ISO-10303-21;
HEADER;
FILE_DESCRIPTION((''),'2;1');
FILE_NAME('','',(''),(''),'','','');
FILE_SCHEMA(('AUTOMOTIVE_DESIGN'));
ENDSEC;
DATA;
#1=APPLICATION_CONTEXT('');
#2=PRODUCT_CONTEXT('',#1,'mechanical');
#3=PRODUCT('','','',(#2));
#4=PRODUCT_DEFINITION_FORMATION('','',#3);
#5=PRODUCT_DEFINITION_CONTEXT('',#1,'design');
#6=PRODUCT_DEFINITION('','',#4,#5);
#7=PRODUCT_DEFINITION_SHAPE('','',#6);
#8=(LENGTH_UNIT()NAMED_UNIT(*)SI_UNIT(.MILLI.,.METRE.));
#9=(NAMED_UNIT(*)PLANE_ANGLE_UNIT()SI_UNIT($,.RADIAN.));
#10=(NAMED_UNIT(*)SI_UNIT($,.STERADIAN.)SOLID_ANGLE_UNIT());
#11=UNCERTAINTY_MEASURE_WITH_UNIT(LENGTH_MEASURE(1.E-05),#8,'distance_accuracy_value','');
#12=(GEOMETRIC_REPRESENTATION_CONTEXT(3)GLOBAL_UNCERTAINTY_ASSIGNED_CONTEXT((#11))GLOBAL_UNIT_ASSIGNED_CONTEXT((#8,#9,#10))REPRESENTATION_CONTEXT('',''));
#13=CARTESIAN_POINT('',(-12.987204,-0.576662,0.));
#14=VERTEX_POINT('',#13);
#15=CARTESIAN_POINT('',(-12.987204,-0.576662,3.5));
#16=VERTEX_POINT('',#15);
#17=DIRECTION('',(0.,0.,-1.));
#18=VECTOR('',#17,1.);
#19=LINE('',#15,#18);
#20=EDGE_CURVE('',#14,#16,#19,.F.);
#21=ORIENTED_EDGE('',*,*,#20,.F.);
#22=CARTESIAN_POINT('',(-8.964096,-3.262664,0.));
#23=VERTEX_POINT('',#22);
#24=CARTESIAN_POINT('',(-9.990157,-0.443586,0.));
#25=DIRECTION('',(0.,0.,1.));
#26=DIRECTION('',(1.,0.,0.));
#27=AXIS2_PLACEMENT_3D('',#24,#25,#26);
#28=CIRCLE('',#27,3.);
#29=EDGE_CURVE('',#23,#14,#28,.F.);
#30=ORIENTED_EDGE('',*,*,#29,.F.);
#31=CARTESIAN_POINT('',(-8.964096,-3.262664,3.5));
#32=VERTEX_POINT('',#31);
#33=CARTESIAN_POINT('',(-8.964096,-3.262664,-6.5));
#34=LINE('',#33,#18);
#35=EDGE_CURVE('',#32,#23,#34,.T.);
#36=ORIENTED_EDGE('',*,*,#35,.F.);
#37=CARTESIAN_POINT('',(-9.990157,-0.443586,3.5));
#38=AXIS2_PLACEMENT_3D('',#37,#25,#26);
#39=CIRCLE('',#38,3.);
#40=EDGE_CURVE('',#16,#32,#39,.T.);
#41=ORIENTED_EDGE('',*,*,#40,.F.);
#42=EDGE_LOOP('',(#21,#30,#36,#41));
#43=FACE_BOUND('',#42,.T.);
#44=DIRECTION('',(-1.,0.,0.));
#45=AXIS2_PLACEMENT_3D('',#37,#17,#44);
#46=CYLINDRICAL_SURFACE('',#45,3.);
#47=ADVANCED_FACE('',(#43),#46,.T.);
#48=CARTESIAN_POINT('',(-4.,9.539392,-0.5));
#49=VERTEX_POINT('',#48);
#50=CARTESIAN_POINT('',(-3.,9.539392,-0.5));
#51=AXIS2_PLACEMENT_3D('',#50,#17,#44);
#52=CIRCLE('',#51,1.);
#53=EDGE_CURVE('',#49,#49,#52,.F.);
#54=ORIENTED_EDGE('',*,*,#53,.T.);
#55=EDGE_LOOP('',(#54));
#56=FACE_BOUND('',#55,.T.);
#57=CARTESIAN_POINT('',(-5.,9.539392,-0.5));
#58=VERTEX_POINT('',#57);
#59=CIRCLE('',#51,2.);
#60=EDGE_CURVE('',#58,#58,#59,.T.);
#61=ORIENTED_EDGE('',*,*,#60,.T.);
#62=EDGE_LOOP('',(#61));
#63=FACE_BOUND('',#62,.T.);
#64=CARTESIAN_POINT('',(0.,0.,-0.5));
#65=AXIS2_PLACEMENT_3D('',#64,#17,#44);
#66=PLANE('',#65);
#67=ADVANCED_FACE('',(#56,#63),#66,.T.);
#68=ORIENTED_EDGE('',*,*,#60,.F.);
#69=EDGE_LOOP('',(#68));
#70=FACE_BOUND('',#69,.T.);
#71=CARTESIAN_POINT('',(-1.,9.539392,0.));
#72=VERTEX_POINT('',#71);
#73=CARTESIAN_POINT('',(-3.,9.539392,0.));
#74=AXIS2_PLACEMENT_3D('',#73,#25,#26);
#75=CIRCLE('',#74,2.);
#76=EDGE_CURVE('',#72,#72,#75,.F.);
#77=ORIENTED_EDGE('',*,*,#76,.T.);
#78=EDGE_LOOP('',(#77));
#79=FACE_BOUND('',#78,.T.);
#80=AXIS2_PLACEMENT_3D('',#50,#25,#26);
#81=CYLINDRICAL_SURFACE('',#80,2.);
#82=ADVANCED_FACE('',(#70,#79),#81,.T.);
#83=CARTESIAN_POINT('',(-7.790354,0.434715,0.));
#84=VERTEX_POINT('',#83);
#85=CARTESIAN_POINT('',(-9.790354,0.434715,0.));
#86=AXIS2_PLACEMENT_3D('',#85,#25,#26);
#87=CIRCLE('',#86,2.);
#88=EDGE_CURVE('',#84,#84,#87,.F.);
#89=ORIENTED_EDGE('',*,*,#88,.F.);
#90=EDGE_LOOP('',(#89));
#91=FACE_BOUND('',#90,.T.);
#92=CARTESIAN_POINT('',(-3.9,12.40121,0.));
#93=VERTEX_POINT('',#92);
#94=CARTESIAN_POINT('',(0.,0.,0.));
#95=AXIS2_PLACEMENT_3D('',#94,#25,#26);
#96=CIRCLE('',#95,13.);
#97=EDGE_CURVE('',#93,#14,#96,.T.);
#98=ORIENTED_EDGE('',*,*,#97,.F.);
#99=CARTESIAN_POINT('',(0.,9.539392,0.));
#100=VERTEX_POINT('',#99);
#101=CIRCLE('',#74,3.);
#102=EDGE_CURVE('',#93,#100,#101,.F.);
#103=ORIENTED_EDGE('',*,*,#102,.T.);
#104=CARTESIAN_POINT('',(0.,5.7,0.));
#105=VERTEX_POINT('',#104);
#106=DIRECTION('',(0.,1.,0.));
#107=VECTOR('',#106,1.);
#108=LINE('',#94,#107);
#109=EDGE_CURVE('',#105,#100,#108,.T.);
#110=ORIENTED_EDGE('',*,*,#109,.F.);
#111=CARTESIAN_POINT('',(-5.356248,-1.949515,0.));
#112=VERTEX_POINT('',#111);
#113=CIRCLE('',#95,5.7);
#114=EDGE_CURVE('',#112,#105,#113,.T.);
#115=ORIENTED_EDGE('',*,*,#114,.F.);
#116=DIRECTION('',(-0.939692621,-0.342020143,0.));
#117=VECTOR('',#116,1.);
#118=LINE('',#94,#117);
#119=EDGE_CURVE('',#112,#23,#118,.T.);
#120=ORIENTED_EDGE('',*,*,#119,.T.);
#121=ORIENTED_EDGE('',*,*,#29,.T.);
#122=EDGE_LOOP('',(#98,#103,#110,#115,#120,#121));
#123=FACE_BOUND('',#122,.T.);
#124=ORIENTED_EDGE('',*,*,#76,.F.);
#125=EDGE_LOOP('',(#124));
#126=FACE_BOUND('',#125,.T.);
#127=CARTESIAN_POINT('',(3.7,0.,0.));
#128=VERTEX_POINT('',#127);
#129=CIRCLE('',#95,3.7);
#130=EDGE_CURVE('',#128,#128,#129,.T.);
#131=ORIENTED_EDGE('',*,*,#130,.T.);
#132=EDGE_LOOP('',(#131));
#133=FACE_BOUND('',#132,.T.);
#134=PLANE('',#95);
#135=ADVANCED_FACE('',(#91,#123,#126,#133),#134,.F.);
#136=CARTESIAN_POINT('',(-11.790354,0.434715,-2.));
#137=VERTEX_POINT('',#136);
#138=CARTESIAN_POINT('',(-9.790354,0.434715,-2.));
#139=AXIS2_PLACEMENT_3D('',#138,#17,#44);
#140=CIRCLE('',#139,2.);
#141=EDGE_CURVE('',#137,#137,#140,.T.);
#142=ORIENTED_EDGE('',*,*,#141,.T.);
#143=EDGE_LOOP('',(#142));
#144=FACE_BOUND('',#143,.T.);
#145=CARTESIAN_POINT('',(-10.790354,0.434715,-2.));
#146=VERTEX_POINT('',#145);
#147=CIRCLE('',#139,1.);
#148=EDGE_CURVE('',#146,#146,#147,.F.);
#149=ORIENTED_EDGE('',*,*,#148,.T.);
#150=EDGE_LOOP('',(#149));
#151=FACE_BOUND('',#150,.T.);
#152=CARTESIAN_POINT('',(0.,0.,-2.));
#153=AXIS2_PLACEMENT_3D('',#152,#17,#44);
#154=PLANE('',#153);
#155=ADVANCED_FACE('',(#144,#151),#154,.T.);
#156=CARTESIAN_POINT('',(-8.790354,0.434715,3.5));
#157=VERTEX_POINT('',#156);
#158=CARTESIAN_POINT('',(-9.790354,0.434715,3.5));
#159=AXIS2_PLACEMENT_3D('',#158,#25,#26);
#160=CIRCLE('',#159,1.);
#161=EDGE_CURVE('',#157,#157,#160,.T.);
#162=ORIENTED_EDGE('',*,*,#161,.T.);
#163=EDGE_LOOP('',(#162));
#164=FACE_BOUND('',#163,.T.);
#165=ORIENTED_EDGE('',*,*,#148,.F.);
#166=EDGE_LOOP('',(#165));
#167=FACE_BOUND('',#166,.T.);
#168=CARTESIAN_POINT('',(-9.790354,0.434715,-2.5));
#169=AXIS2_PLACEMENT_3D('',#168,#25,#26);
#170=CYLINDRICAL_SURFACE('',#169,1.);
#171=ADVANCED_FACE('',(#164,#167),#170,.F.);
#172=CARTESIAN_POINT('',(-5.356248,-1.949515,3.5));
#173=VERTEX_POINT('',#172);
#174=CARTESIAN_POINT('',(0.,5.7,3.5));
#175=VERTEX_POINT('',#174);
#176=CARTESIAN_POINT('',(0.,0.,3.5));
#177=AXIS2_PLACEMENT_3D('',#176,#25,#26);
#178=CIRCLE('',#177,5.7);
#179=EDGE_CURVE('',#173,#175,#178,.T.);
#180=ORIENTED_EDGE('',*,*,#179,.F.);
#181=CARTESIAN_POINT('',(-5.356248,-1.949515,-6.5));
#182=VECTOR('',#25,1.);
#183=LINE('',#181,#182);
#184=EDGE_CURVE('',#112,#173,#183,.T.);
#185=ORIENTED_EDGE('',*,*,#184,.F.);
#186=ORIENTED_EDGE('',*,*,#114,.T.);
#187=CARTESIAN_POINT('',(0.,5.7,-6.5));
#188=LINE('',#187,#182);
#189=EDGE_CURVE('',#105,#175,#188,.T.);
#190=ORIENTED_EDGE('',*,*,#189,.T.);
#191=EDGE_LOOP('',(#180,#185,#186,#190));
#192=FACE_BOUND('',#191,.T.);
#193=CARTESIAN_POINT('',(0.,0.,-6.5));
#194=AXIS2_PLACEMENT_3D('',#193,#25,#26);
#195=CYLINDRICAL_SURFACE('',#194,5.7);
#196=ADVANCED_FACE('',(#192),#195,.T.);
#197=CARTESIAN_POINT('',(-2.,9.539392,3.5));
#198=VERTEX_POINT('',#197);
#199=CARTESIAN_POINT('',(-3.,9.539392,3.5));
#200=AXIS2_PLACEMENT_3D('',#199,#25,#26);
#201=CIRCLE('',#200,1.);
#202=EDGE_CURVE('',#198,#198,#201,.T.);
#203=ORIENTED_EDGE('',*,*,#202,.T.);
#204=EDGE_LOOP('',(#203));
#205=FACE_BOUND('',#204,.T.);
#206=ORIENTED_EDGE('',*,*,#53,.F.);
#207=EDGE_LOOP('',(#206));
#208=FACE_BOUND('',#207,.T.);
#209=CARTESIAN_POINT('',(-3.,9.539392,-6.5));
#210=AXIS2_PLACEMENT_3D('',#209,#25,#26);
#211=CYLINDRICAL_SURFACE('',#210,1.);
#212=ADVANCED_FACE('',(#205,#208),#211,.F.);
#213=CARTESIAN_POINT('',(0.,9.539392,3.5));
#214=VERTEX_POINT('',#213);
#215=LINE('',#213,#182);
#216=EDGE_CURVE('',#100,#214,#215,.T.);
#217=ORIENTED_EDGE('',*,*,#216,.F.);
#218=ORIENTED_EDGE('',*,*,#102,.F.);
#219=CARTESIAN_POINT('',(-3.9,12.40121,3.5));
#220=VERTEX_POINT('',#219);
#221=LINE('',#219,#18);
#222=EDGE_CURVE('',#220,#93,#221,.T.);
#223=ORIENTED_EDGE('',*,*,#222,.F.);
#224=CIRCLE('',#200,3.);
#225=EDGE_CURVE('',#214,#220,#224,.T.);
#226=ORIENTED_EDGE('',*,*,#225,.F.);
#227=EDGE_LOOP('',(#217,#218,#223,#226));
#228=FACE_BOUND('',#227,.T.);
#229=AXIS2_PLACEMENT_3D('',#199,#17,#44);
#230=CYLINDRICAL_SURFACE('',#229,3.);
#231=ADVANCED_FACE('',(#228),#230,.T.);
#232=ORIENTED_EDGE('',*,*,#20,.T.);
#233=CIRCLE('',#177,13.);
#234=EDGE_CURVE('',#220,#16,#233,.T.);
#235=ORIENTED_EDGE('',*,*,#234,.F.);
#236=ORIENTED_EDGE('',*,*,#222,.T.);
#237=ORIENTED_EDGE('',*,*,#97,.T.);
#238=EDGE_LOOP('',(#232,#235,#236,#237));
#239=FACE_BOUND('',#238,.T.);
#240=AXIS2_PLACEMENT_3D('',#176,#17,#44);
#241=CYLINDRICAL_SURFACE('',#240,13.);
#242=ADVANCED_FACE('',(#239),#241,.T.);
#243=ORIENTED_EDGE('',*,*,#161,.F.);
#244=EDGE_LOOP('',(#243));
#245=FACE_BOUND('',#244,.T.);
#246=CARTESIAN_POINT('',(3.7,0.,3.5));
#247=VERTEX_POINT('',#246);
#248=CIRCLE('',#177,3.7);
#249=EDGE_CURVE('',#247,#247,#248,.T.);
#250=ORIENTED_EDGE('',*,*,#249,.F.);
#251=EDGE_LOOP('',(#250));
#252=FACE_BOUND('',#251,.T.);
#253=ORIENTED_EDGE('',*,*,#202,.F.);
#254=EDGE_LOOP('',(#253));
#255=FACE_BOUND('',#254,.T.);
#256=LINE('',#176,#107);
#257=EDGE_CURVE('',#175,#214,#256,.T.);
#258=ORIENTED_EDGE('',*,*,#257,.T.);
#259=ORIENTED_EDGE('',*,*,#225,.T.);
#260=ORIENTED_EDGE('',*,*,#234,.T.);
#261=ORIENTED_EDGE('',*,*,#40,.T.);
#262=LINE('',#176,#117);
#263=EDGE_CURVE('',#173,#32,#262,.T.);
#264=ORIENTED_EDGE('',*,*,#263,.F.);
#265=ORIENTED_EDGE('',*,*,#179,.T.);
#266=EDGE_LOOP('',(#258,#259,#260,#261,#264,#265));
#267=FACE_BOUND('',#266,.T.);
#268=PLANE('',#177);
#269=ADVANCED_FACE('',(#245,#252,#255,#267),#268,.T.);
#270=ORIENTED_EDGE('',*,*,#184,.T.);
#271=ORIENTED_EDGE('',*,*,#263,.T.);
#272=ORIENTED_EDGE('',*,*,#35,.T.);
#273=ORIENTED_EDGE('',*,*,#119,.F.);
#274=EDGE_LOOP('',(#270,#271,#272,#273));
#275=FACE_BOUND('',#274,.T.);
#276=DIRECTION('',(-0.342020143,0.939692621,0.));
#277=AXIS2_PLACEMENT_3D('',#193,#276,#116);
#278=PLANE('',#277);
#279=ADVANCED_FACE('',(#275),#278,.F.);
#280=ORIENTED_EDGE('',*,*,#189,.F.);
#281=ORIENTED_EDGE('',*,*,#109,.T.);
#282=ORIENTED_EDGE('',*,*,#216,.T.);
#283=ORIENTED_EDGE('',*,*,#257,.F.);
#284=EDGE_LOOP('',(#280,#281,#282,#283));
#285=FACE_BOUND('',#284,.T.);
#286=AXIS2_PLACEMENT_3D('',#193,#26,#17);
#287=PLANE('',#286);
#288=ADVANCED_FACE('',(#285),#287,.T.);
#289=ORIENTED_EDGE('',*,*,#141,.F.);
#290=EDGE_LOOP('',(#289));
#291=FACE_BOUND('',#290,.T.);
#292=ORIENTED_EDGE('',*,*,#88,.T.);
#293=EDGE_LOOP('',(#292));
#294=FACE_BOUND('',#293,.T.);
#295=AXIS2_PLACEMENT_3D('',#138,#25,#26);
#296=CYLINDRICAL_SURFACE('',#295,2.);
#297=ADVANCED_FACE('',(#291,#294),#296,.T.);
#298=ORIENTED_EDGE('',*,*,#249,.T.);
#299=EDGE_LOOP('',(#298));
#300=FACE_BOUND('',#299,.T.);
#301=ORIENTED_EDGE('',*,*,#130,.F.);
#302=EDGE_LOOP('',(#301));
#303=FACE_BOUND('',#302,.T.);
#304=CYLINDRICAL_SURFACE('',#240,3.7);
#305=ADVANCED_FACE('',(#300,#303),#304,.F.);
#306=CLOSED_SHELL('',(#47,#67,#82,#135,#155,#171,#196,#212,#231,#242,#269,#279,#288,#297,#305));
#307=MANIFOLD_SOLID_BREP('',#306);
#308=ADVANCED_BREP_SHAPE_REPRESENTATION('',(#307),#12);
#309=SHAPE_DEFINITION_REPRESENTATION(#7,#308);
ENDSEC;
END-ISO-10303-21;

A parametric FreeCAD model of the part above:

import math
import FreeCAD as App
import Part
import Sketcher
from FreeCAD import Vector
Q = App.Units.Quantity


def edges_at(feature, points):
    """Names of the edges that pass closest to the given points."""
    edges = feature.Shape.Edges
    near = lambda p: min(range(len(edges)), key=lambda i: edges[i].distToShape(Part.Vertex(*p))[0])
    return sorted({f"Edge{near(p) + 1}" for p in points})

doc = App.newDocument("Part")
params = doc.addObject("Spreadsheet::Sheet", "Params")
for row, (alias, value) in enumerate([
    ("sketch1_diameter", "26 mm"),
    ("sketch1_diameter2", "7.4 mm"),
    ("pad1_length", "3.5 mm"),
    ("sketch2_radius", "13 mm"),
    ("sketch2_radius2", "5.7 mm"),
    ("pocket1_length", "10 mm"),
    ("sketch3_diameter", "2 mm"),
    ("pocket2_length", "10 mm"),
    ("sketch4_diameter", "2 mm"),
    ("pocket3_length", "6 mm"),
    ("fillet_radius", "3 mm"),
    ("sketch5_diameter", "4 mm"),
    ("sketch5_diameter2", "2 mm"),
    ("pad2_length", "2 mm"),
    ("sketch6_diameter", "4 mm"),
    ("sketch6_diameter2", "2 mm"),
    ("pad3_length", "0.5 mm"),
], start=1):
    params.set(f"A{row}", alias)
    params.set(f"B{row}", "=" + value)
    params.setAlias(f"B{row}", alias)

body = doc.addObject("PartDesign::Body", "Body")

# Sketch on XY plane
sketch1 = doc.addObject("Sketcher::SketchObject", "Sketch")
body.addObject(sketch1)
sketch1.AttachmentSupport = (doc.XY_Plane, [""])
sketch1.MapMode = "FlatFace"
sketch1.addGeometry(Part.Circle(Vector(0, 0, 0), Vector(0, 0, 1), 13), False)
sketch1.addGeometry(Part.Circle(Vector(0, 0, 0), Vector(0, 0, 1), 3.7), False)
sketch1.addConstraint(Sketcher.Constraint("Coincident", 0, 3, -1, 1))
sketch1.addConstraint(Sketcher.Constraint("Coincident", 1, 3, -1, 1))
sketch1.addConstraint(Sketcher.Constraint("Diameter", 0, 26.0))
sketch1.addConstraint(Sketcher.Constraint("Diameter", 1, 7.4))
sketch1.setExpression("Constraints[2]", "Params.sketch1_diameter")
sketch1.setExpression("Constraints[3]", "Params.sketch1_diameter2")
pad1 = doc.addObject("PartDesign::Pad", "Pad")
body.addObject(pad1)
pad1.Profile = sketch1
pad1.setExpression("Length", "Params.pad1_length")

# Sketch on XY plane
sketch2 = doc.addObject("Sketcher::SketchObject", "Sketch001")
body.addObject(sketch2)
sketch2.AttachmentSupport = (doc.XY_Plane, [""])
sketch2.MapMode = "FlatFace"
sketch2.AttachmentOffset = App.Placement(Vector(0, 0, 3.5), App.Rotation())
sketch2.addGeometry(Part.ArcOfCircle(Part.Circle(Vector(0, 0, 0), Vector(0, 0, 1), 6), math.radians(-160), math.radians(0)), False)
sketch2.addGeometry(Part.LineSegment(Vector(-5, -2, 0), Vector(-12, -4, 0)), False)
sketch2.addGeometry(Part.ArcOfCircle(Part.Circle(Vector(0, 0, 0), Vector(0, 0, 1), 13), math.radians(-160), math.radians(0)), False)
sketch2.addGeometry(Part.ArcOfCircle(Part.Circle(Vector(0, 0, 0), Vector(0, 0, 1), 13), math.radians(0), math.radians(90)), False)
sketch2.addGeometry(Part.LineSegment(Vector(0, 13, 0), Vector(0, 6, 0)), False)
sketch2.addGeometry(Part.ArcOfCircle(Part.Circle(Vector(0, 0, 0), Vector(0, 0, 1), 6), math.radians(0), math.radians(90)), False)
sketch2.addConstraint(Sketcher.Constraint("Coincident", 0, 1, 1, 1))
sketch2.addConstraint(Sketcher.Constraint("Coincident", 1, 2, 2, 1))
sketch2.addConstraint(Sketcher.Constraint("Tangent", 2, 2, 3, 1))
sketch2.addConstraint(Sketcher.Constraint("Coincident", 3, 2, 4, 1))
sketch2.addConstraint(Sketcher.Constraint("Coincident", 4, 2, 5, 2))
sketch2.addConstraint(Sketcher.Constraint("Tangent", 5, 1, 0, 2))
sketch2.addConstraint(Sketcher.Constraint("Vertical", 4))
sketch2.addConstraint(Sketcher.Constraint("Coincident", 0, 3, -1, 1))
sketch2.addConstraint(Sketcher.Constraint("Coincident", 2, 3, -1, 1))
sketch2.addConstraint(Sketcher.Constraint("Equal", 2, 3))
sketch2.addConstraint(Sketcher.Constraint("Equal", 0, 5))
sketch2.addConstraint(Sketcher.Constraint("PointOnObject", 2, 2, -1))
sketch2.addConstraint(Sketcher.Constraint("PointOnObject", 3, 2, -2))
sketch2.addConstraint(Sketcher.Constraint("PointOnObject", 5, 1, -1))
sketch2.addConstraint(Sketcher.Constraint("Radius", 2, 13.0))
sketch2.addConstraint(Sketcher.Constraint("Radius", 0, 5.7))
sketch2.addConstraint(Sketcher.Constraint("Angle", 1, Q("-160 deg")))
sketch2.addConstraint(Sketcher.Constraint("DistanceY", 1, 2, -1, 1, 4.446262))
sketch2.setExpression("Constraints[14]", "Params.sketch2_radius")
sketch2.setExpression("Constraints[15]", "Params.sketch2_radius2")
pocket1 = doc.addObject("PartDesign::Pocket", "Pocket")
body.addObject(pocket1)
pocket1.Profile = sketch2
pocket1.setExpression("Length", "Params.pocket1_length")

# Sketch on XY plane
sketch3 = doc.addObject("Sketcher::SketchObject", "Sketch002")
body.addObject(sketch3)
sketch3.AttachmentSupport = (doc.XY_Plane, [""])
sketch3.MapMode = "FlatFace"
sketch3.AttachmentOffset = App.Placement(Vector(0, 0, 3.5), App.Rotation())
sketch3.addGeometry(Part.Circle(Vector(-3, 9.5, 0), Vector(0, 0, 1), 1), False)
sketch3.addConstraint(Sketcher.Constraint("Diameter", 0, 2.0))
sketch3.addConstraint(Sketcher.Constraint("DistanceX", 0, 3, -1, 1, 3.0))
sketch3.addConstraint(Sketcher.Constraint("DistanceY", -1, 1, 0, 3, 9.539392))
sketch3.setExpression("Constraints[0]", "Params.sketch3_diameter")
pocket2 = doc.addObject("PartDesign::Pocket", "Pocket001")
body.addObject(pocket2)
pocket2.Profile = sketch3
pocket2.setExpression("Length", "Params.pocket2_length")

# Sketch on XY plane
sketch4 = doc.addObject("Sketcher::SketchObject", "Sketch003")
body.addObject(sketch4)
sketch4.AttachmentSupport = (doc.XY_Plane, [""])
sketch4.MapMode = "FlatFace"
sketch4.AttachmentOffset = App.Placement(Vector(0, 0, 3.5), App.Rotation())
sketch4.addGeometry(Part.Circle(Vector(-9.8, 0.4, 0), Vector(0, 0, 1), 1), False)
sketch4.addConstraint(Sketcher.Constraint("Diameter", 0, 2.0))
sketch4.addConstraint(Sketcher.Constraint("DistanceX", 0, 3, -1, 1, 9.790354))
sketch4.addConstraint(Sketcher.Constraint("DistanceY", -1, 1, 0, 3, 0.434715))
sketch4.setExpression("Constraints[0]", "Params.sketch4_diameter")
pocket3 = doc.addObject("PartDesign::Pocket", "Pocket002")
body.addObject(pocket3)
pocket3.Profile = sketch4
pocket3.setExpression("Length", "Params.pocket3_length")
doc.recompute()

fillet = doc.addObject("PartDesign::Fillet", "Fillet")
body.addObject(fillet)
fillet.Base = (pocket3, edges_at(pocket3, [(0, 13, 1.75), (-12.216, -4.446, 1.75)]))
fillet.setExpression("Radius", "Params.fillet_radius")

# Sketch on XY plane
sketch5 = doc.addObject("Sketcher::SketchObject", "Sketch004")
body.addObject(sketch5)
sketch5.AttachmentSupport = (doc.XY_Plane, [""])
sketch5.MapMode = "FlatFace"
sketch5.addGeometry(Part.Circle(Vector(-9.8, 0.4, 0), Vector(0, 0, 1), 2), False)
sketch5.addGeometry(Part.Circle(Vector(-9.8, 0.4, 0), Vector(0, 0, 1), 1), False)
sketch5.addConstraint(Sketcher.Constraint("Coincident", 1, 3, 0, 3))
sketch5.addConstraint(Sketcher.Constraint("Diameter", 0, 4.0))
sketch5.addConstraint(Sketcher.Constraint("Diameter", 1, 2.0))
sketch5.addConstraint(Sketcher.Constraint("DistanceX", 0, 3, -1, 1, 9.790354))
sketch5.addConstraint(Sketcher.Constraint("DistanceY", -1, 1, 0, 3, 0.434715))
sketch5.setExpression("Constraints[1]", "Params.sketch5_diameter")
sketch5.setExpression("Constraints[2]", "Params.sketch5_diameter2")
pad2 = doc.addObject("PartDesign::Pad", "Pad001")
body.addObject(pad2)
pad2.Profile = sketch5
pad2.setExpression("Length", "Params.pad2_length")
pad2.Reversed = True

# Sketch on XY plane
sketch6 = doc.addObject("Sketcher::SketchObject", "Sketch005")
body.addObject(sketch6)
sketch6.AttachmentSupport = (doc.XY_Plane, [""])
sketch6.MapMode = "FlatFace"
sketch6.addGeometry(Part.Circle(Vector(-3, 9.5, 0), Vector(0, 0, 1), 2), False)
sketch6.addGeometry(Part.Circle(Vector(-3, 9.5, 0), Vector(0, 0, 1), 1), False)
sketch6.addConstraint(Sketcher.Constraint("Coincident", 1, 3, 0, 3))
sketch6.addConstraint(Sketcher.Constraint("Diameter", 0, 4.0))
sketch6.addConstraint(Sketcher.Constraint("Diameter", 1, 2.0))
sketch6.addConstraint(Sketcher.Constraint("DistanceX", 0, 3, -1, 1, 3.0))
sketch6.addConstraint(Sketcher.Constraint("DistanceY", -1, 1, 0, 3, 9.539392))
sketch6.setExpression("Constraints[1]", "Params.sketch6_diameter")
sketch6.setExpression("Constraints[2]", "Params.sketch6_diameter2")
pad3 = doc.addObject("PartDesign::Pad", "Pad002")
body.addObject(pad3)
pad3.Profile = sketch6
pad3.setExpression("Length", "Params.pad3_length")
pad3.Reversed = True

doc.recompute()
